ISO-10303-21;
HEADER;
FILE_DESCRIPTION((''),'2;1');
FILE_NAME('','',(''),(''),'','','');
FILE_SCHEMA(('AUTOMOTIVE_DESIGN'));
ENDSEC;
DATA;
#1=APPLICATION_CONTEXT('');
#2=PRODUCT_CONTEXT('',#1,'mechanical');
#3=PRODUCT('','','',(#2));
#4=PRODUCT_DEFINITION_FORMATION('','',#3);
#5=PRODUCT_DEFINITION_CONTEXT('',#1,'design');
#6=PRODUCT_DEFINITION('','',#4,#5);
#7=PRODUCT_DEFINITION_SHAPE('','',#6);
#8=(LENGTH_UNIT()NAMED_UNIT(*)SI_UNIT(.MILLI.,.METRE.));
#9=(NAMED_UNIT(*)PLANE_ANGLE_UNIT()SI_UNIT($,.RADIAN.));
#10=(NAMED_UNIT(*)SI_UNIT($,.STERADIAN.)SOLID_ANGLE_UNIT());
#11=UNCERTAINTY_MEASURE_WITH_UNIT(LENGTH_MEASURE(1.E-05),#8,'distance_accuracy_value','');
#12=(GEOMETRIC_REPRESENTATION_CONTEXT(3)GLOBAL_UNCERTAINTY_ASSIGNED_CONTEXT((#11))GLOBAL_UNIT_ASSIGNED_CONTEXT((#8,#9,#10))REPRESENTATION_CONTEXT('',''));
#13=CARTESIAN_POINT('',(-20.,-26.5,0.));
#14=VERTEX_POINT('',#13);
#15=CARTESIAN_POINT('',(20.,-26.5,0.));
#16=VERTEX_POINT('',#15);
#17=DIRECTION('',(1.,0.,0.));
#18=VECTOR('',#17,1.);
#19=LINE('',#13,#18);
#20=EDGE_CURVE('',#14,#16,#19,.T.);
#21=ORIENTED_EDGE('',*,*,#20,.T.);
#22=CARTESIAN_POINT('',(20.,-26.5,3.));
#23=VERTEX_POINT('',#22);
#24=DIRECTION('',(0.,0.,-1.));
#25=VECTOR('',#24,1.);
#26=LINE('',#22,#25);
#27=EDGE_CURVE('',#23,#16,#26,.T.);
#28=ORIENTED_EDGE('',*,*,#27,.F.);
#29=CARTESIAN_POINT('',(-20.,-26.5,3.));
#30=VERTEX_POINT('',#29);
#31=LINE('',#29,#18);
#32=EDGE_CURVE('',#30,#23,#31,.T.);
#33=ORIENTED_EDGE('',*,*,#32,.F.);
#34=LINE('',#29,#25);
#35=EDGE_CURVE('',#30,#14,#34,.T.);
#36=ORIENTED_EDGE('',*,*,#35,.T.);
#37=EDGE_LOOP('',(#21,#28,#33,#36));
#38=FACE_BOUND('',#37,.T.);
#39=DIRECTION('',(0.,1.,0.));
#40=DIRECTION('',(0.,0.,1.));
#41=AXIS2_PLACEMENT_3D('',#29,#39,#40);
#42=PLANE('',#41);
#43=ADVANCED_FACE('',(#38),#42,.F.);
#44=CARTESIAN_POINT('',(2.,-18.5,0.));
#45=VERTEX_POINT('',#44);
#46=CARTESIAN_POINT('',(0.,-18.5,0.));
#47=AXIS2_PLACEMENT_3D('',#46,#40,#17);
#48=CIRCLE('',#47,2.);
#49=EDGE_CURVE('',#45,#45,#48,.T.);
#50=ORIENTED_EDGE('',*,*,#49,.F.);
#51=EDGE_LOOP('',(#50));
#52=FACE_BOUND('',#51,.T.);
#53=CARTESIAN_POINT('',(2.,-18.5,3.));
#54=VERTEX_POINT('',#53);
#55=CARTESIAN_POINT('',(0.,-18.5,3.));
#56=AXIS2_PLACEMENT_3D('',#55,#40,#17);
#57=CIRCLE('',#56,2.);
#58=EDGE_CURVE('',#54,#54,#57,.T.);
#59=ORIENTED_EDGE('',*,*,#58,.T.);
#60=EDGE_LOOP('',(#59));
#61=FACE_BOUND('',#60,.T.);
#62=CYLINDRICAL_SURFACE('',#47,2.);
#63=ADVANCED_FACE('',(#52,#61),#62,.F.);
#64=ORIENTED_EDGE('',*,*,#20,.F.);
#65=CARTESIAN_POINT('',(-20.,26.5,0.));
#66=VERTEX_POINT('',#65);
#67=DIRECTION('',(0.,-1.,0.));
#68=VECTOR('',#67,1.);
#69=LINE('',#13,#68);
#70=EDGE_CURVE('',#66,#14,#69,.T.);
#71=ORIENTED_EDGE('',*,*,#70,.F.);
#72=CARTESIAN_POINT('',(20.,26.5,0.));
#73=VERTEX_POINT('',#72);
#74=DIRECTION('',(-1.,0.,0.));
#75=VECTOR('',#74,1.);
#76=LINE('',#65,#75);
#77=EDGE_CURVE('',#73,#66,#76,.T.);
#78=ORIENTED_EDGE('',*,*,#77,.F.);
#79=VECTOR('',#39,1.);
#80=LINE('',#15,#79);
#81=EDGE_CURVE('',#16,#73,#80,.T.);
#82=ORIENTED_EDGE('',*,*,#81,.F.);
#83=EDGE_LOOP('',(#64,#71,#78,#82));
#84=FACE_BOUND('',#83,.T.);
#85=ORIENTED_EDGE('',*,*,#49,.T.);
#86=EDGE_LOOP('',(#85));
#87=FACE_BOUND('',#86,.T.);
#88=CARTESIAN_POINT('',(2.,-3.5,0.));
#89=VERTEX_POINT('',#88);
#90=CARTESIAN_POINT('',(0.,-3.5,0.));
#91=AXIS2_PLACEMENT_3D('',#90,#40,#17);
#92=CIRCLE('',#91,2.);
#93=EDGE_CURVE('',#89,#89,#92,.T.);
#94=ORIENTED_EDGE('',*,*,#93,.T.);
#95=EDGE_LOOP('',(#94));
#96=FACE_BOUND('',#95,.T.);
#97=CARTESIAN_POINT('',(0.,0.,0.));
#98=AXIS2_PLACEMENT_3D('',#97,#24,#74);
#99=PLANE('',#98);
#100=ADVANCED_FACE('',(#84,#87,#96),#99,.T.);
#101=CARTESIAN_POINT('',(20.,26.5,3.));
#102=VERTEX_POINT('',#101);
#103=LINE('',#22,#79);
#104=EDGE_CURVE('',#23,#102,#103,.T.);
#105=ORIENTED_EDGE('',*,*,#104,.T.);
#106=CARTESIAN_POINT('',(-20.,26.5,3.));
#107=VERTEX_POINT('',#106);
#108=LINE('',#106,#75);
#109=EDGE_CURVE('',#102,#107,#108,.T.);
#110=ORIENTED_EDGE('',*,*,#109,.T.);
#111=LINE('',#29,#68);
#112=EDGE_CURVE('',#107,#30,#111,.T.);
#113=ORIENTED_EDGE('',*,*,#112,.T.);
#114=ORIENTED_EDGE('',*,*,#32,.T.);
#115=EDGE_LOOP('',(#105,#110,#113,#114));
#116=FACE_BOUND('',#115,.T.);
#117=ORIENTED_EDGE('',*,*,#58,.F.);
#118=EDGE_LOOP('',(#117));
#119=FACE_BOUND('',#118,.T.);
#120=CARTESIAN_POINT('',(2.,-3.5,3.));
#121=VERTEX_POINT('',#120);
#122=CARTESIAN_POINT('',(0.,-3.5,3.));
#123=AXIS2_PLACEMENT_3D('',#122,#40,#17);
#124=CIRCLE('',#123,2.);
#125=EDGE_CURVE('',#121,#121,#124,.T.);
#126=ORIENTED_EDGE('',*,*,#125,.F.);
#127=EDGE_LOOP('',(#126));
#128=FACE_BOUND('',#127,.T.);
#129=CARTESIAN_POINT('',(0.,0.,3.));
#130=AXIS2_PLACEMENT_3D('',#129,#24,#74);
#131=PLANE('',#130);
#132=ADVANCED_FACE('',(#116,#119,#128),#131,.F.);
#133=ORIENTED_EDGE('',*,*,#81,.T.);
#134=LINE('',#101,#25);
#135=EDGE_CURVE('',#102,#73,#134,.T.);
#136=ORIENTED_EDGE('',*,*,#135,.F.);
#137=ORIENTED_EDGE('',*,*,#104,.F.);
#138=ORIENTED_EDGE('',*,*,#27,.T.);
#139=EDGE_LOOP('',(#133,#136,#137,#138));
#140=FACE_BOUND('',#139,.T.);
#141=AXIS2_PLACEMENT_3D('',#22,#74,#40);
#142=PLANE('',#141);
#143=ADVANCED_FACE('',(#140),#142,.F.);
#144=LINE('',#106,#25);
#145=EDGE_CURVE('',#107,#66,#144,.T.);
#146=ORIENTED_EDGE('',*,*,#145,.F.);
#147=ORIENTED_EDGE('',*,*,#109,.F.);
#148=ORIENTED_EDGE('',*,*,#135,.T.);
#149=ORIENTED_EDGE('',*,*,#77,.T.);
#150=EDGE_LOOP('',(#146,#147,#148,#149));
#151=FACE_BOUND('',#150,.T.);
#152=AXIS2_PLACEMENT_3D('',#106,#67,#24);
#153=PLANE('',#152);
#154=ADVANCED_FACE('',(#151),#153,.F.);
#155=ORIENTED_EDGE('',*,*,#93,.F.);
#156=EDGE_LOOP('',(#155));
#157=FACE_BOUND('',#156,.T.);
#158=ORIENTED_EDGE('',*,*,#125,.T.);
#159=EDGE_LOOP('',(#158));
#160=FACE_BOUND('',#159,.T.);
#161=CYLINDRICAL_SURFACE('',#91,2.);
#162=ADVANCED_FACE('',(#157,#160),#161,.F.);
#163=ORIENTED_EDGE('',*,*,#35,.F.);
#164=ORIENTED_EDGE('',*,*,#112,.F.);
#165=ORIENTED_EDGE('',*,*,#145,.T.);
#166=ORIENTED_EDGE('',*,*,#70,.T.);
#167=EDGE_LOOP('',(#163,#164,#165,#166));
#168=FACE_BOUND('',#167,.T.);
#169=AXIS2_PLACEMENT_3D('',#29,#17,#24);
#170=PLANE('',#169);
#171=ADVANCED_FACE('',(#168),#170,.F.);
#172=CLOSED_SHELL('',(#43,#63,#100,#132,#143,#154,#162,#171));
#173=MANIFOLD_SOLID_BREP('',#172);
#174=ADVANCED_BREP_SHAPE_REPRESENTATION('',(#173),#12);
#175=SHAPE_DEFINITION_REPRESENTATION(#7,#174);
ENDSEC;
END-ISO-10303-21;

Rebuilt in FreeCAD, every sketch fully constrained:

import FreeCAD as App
import Part
import Sketcher

V = App.Vector

doc = App.newDocument("Part")
body = doc.addObject("PartDesign::Body", "Body")

sketch1 = body.newObject("Sketcher::SketchObject", "Sketch")
sketch1.AttachmentSupport = (doc.getObject("XY_Plane"), [""])
sketch1.MapMode = "FlatFace"
sketch1.addGeometry([
    Part.LineSegment(V(-20, 26.5, 0), V(-20, -26.5, 0)),
    Part.LineSegment(V(-20, -26.5, 0), V(20, -26.5, 0)),
    Part.LineSegment(V(20, -26.5, 0), V(20, 26.5, 0)),
    Part.LineSegment(V(20, 26.5, 0), V(-20, 26.5, 0)),
], False)
sketch1.addConstraint([
    Sketcher.Constraint("Coincident", 0, 2, 1, 1),
    Sketcher.Constraint("Coincident", 1, 2, 2, 1),
    Sketcher.Constraint("Coincident", 2, 2, 3, 1),
    Sketcher.Constraint("Coincident", 3, 2, 0, 1),
    Sketcher.Constraint("Vertical", 0),
    Sketcher.Constraint("Horizontal", 1),
    Sketcher.Constraint("Vertical", 2),
    Sketcher.Constraint("Horizontal", 3),
    Sketcher.Constraint("Symmetric", 0, 2, 2, 2, -1, 1),
    Sketcher.Constraint("DistanceX", 1, 1, 1, 2, 40.0),
    Sketcher.Constraint("DistanceY", 0, 2, 0, 1, 53.0),
])
pad1 = body.newObject("PartDesign::Pad", "Pad")
pad1.Profile = sketch1
pad1.Length = 3

sketch2 = body.newObject("Sketcher::SketchObject", "Sketch001")
sketch2.AttachmentSupport = (doc.getObject("XY_Plane"), [""])
sketch2.MapMode = "FlatFace"
sketch2.AttachmentOffset = App.Placement(V(0, 0, 3), App.Rotation())
sketch2.addGeometry([
    Part.Circle(V(0, -18.5, 0), V(0, 0, 1), 2),
    Part.Circle(V(0, -3.5, 0), V(0, 0, 1), 2),
], False)
sketch2.addConstraint([
    Sketcher.Constraint("Equal", 0, 1),
    Sketcher.Constraint("PointOnObject", 0, 3, -2),
    Sketcher.Constraint("PointOnObject", 1, 3, -2),
    Sketcher.Constraint("Diameter", 0, 4.0),
    Sketcher.Constraint("DistanceY", 0, 3, 1, 3, 15.0),
    Sketcher.Constraint("DistanceY", 0, 3, -1, 1, 18.5),
])
pocket1 = body.newObject("PartDesign::Pocket", "Pocket")
pocket1.Profile = sketch2
pocket1.Type = "ThroughAll"

doc.recompute()
